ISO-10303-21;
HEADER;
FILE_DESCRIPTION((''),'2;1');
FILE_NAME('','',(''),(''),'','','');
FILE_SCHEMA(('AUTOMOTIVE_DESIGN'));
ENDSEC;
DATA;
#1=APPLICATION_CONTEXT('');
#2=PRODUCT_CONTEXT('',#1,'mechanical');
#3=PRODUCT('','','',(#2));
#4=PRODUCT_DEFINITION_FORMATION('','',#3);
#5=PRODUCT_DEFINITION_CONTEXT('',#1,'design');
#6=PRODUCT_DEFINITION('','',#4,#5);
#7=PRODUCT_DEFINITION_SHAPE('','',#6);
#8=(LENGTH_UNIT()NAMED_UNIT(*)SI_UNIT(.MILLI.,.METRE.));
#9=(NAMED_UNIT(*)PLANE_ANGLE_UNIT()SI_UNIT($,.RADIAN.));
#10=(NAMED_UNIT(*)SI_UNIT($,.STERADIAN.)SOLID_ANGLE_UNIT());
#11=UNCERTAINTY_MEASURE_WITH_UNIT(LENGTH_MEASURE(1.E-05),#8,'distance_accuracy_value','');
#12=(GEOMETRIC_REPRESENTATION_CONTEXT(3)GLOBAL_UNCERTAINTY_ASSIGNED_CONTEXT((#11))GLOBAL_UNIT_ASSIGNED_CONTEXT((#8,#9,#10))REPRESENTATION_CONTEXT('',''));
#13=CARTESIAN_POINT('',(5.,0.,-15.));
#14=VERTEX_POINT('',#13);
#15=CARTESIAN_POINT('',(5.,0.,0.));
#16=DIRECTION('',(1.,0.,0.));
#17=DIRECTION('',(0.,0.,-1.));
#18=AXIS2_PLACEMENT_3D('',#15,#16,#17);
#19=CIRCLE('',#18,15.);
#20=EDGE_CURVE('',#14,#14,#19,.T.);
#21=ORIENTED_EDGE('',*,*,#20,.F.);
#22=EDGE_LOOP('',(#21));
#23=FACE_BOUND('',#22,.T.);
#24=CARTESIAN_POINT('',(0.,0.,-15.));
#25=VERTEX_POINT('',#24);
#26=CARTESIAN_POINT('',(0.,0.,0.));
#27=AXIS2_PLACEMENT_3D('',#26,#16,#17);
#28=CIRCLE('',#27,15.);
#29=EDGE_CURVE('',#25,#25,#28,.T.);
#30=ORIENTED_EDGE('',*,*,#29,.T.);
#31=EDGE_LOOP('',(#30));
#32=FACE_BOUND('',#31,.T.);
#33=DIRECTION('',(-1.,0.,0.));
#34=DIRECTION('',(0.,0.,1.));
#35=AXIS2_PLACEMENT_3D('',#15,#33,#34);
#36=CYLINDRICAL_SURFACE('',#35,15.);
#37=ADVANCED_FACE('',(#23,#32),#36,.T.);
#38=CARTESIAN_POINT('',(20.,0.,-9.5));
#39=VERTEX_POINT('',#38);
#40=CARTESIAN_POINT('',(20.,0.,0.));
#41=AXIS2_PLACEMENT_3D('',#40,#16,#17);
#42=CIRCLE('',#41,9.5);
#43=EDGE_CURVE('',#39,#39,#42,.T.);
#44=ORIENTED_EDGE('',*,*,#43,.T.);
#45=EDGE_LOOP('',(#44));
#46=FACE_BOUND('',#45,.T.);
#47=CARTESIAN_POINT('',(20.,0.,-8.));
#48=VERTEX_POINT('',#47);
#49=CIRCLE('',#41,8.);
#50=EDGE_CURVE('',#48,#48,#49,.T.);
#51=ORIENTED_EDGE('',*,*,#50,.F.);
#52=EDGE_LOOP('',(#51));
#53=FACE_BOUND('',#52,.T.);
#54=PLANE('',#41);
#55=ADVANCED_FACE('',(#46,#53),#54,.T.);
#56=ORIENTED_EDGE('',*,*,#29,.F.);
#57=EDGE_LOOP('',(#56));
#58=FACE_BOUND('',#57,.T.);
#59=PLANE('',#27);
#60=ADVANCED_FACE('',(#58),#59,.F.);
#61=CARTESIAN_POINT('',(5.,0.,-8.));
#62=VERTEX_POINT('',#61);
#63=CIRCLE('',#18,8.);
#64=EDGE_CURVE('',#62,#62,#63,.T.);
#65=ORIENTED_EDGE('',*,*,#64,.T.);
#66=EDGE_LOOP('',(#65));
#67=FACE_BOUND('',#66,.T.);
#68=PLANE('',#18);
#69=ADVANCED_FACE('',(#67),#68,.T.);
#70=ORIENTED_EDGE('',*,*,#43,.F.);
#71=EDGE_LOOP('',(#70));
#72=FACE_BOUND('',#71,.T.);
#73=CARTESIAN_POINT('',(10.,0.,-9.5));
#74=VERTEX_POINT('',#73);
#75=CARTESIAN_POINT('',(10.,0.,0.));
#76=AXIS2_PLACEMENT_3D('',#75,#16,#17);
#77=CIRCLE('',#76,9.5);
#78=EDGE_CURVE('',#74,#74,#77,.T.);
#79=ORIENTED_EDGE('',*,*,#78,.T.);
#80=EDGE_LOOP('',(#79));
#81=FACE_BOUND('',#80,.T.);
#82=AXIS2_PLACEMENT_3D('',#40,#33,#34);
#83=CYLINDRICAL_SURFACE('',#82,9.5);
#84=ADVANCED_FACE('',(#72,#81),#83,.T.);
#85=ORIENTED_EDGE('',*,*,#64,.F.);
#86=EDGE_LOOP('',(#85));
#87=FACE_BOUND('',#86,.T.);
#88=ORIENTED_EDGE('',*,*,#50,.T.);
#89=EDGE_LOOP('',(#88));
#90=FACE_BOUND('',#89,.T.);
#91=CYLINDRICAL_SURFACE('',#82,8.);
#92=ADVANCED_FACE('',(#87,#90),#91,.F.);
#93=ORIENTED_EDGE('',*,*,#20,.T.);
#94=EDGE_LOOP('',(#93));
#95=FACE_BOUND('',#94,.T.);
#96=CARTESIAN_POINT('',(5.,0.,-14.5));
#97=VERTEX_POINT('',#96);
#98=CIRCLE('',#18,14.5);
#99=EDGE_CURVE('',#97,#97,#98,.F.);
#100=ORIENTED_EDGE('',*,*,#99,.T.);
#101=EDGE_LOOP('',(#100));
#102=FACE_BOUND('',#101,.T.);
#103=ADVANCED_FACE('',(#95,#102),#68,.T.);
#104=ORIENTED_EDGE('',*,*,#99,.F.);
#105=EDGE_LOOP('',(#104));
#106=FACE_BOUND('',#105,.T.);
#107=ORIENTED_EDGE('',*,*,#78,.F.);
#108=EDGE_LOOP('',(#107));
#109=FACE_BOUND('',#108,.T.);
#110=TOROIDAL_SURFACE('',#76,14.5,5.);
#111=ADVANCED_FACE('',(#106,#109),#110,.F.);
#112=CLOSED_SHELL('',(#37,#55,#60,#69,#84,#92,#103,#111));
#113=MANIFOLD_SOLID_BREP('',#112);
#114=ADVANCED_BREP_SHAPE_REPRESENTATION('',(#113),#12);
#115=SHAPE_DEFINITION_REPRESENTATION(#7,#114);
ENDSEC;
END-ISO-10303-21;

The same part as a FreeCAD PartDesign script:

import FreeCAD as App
import Part
import Sketcher


def edges_at(feature, points):
    """Names of the edges that pass closest to the given points."""
    edges = feature.Shape.Edges
    near = lambda p: min(range(len(edges)), key=lambda i: edges[i].distToShape(Part.Vertex(*p))[0])
    return sorted({f"Edge{near(p) + 1}" for p in points})

doc = App.newDocument("Part")
body = doc.addObject("PartDesign::Body", "Body")

sketch1 = body.newObject("Sketcher::SketchObject", "Sketch")
sketch1.AttachmentSupport = (doc.getObject("YZ_Plane"), [""])
sketch1.MapMode = "FlatFace"
sketch1.addGeometry(Part.Circle(App.Vector(0, 0, 0), App.Vector(0, 0, 1), 10), False)
sketch1.addGeometry(Part.Circle(App.Vector(0, 0, 0), App.Vector(0, 0, 1), 8), False)
sketch1.addConstraint(Sketcher.Constraint("Coincident", 0, 3, -1, 1))
sketch1.addConstraint(Sketcher.Constraint("Coincident", 1, 3, -1, 1))
sketch1.addConstraint(Sketcher.Constraint("Diameter", 0, 19.0))
sketch1.addConstraint(Sketcher.Constraint("Diameter", 1, 16.0))
pad1 = body.newObject("PartDesign::Pad", "Pad")
pad1.Profile = sketch1
pad1.Length = 20

sketch2 = body.newObject("Sketcher::SketchObject", "Sketch001")
sketch2.AttachmentSupport = (doc.getObject("YZ_Plane"), [""])
sketch2.MapMode = "FlatFace"
sketch2.addGeometry(Part.Circle(App.Vector(0, 0, 0), App.Vector(0, 0, 1), 15), False)
sketch2.addConstraint(Sketcher.Constraint("Coincident", 0, 3, -1, 1))
sketch2.addConstraint(Sketcher.Constraint("Diameter", 0, 30.0))
pad2 = body.newObject("PartDesign::Pad", "Pad001")
pad2.Profile = sketch2
pad2.Length = 5
doc.recompute()

fillet = body.newObject("PartDesign::Fillet", "Fillet")
fillet.Base = (pad2, edges_at(pad2, [(5, 0, 9.5)]))
fillet.Radius = 5

doc.recompute()
